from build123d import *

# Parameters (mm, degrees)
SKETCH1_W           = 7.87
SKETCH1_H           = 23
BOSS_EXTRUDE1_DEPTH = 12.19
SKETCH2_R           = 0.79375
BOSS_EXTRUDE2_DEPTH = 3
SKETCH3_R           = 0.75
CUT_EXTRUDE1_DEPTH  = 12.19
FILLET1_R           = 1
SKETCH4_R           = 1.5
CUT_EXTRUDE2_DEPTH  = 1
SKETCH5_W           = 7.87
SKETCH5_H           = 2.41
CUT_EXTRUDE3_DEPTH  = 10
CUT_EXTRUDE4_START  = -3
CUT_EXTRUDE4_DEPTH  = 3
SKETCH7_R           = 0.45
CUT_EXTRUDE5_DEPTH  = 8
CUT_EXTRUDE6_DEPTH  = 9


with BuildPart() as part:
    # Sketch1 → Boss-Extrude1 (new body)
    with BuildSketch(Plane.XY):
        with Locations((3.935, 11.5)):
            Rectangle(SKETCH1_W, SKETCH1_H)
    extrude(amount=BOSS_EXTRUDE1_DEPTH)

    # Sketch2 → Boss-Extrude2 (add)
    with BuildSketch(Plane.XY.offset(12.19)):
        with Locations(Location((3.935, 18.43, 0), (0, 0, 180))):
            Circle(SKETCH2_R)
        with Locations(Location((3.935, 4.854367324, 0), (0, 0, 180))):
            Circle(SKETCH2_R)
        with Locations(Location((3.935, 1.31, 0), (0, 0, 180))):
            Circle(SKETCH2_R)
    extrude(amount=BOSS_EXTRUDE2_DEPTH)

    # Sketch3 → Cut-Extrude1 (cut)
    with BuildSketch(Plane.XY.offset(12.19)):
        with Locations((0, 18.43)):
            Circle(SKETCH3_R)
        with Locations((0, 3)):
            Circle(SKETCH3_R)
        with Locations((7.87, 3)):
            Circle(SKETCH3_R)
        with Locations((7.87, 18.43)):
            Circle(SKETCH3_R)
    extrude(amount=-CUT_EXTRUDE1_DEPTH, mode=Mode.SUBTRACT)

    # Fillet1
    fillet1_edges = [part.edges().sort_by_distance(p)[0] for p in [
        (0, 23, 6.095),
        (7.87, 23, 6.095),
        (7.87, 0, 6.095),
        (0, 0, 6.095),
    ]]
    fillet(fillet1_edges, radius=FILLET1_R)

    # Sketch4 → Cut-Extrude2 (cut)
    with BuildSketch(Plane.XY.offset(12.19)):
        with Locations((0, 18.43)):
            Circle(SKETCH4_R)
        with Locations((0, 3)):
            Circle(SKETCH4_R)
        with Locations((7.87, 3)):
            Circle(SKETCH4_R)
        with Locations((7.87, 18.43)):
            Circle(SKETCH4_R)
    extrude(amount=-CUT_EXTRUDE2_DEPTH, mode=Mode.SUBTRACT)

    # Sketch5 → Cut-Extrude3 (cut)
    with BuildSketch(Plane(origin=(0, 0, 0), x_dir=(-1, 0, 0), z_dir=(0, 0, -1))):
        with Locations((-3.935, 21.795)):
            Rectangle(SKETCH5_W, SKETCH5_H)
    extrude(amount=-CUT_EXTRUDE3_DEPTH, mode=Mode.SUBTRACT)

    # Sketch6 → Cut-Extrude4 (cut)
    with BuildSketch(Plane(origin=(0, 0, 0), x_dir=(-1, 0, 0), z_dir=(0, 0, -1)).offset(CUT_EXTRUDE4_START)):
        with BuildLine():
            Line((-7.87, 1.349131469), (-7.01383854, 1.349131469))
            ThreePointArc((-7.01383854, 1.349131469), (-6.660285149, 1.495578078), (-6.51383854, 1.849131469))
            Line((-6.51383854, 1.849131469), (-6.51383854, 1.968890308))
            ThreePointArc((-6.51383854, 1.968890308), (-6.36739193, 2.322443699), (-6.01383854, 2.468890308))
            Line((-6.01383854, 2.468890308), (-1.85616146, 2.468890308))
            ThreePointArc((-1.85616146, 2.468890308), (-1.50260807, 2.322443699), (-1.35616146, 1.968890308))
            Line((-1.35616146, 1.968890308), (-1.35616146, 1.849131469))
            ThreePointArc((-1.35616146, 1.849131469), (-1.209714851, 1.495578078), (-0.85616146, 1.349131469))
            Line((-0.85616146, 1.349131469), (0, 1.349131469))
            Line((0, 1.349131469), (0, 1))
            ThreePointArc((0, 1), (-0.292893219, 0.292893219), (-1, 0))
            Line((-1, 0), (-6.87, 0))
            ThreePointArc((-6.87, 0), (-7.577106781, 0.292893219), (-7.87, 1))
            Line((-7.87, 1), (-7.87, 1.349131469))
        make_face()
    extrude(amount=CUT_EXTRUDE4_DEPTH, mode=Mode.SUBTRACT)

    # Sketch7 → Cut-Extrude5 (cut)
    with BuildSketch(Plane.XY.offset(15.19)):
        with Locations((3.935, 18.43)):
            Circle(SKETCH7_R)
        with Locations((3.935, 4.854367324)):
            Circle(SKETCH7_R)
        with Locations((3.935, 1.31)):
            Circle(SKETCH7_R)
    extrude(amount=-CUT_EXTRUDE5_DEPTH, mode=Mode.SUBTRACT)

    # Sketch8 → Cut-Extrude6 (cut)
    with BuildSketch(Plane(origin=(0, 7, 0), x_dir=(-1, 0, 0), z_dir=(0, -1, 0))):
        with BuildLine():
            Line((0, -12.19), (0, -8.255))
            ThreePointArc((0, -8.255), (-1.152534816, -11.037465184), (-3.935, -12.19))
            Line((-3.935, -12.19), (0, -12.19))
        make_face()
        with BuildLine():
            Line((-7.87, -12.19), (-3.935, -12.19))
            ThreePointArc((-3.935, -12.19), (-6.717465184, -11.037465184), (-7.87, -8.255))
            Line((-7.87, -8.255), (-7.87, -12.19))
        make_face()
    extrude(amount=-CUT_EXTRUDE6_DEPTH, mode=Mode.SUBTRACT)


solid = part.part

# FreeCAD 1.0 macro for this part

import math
import FreeCAD as App
import Part
import Sketcher

V = App.Vector
Q = App.Units.Quantity


def edges_at(feature, points):
    """Names of the edges that pass closest to the given points."""
    edges = feature.Shape.Edges
    near = lambda p: min(range(len(edges)), key=lambda i: edges[i].distToShape(Part.Vertex(*p))[0])
    return sorted({f"Edge{near(p) + 1}" for p in points})

doc = App.newDocument("Part")
params = doc.addObject("Spreadsheet::Sheet", "Params")
for row, (alias, value) in enumerate([
    ("sketch1_height", "23 mm"),
    ("sketch1_width", "7.87 mm"),
    ("pad1_length", "12.19 mm"),
    ("pad2_length", "3 mm"),
    ("sketch3_diameter", "1.5 mm"),
    ("pocket1_length", "12.19 mm"),
    ("fillet_radius", "1 mm"),
    ("sketch4_diameter", "3 mm"),
    ("pocket2_length", "1 mm"),
    ("sketch5_width", "7.87 mm"),
    ("sketch5_height", "2.41 mm"),
    ("pocket3_length", "10 mm"),
    ("sketch6_radius", "1 mm"),
    ("sketch6_radius2", "0.5 mm"),
    ("sketch6_width", "5.87 mm"),
    ("pocket4_length", "3 mm"),
    ("sketch7_diameter", "0.9 mm"),
    ("pocket5_length", "8 mm"),
    ("pocket6_length", "9 mm"),
], start=1):
    params.set(f"A{row}", alias)
    params.set(f"B{row}", "=" + value)
    params.setAlias(f"B{row}", alias)

body = doc.addObject("PartDesign::Body", "Body")

# Sketch on XY plane
sketch1 = body.newObject("Sketcher::SketchObject", "Sketch")
sketch1.AttachmentSupport = (doc.getObject("XY_Plane"), [""])
sketch1.MapMode = "FlatFace"
sketch1.addGeometry(Part.LineSegment(V(0, 23, 0), V(0, 0, 0)), False)
sketch1.addGeometry(Part.LineSegment(V(0, 0, 0), V(7.87, 0, 0)), False)
sketch1.addGeometry(Part.LineSegment(V(7.87, 0, 0), V(7.87, 23, 0)), False)
sketch1.addGeometry(Part.LineSegment(V(7.87, 23, 0), V(0, 23, 0)), False)
sketch1.addConstraint(Sketcher.Constraint("Coincident", 0, 2, 1, 1))
sketch1.addConstraint(Sketcher.Constraint("Coincident", 1, 2, 2, 1))
sketch1.addConstraint(Sketcher.Constraint("Coincident", 2, 2, 3, 1))
sketch1.addConstraint(Sketcher.Constraint("Coincident", 3, 2, 0, 1))
sketch1.addConstraint(Sketcher.Constraint("Vertical", 0))
sketch1.addConstraint(Sketcher.Constraint("Horizontal", 1))
sketch1.addConstraint(Sketcher.Constraint("Vertical", 2))
sketch1.addConstraint(Sketcher.Constraint("Horizontal", 3))
sketch1.addConstraint(Sketcher.Constraint("Coincident", 0, 2, -1, 1))
sketch1.addConstraint(Sketcher.Constraint("DistanceY", 0, 2, 0, 1, Q("23 mm")))
sketch1.addConstraint(Sketcher.Constraint("DistanceX", 1, 1, 1, 2, Q("7.87 mm")))
sketch1.setExpression("Constraints[9]", "Params.sketch1_height")
sketch1.setExpression("Constraints[10]", "Params.sketch1_width")
pad1 = body.newObject("PartDesign::Pad", "Pad")
pad1.Profile = sketch1
pad1.setExpression("Length", "Params.pad1_length")

# Sketch on XY plane
sketch2 = body.newObject("Sketcher::SketchObject", "Sketch001")
sketch2.AttachmentSupport = (doc.getObject("XY_Plane"), [""])
sketch2.MapMode = "FlatFace"
sketch2.AttachmentOffset = App.Placement(V(0, 0, 12.19), App.Rotation())
sketch2.addGeometry(Part.Circle(V(3.935, 18.43, 0), V(0, 0, 1), 0.79375), False)
sketch2.addGeometry(Part.Circle(V(3.935, 4.854367, 0), V(0, 0, 1), 0.79375), False)
sketch2.addGeometry(Part.Circle(V(3.935, 1.31, 0), V(0, 0, 1), 0.79375), False)
sketch2.addConstraint(Sketcher.Constraint("Equal", 0, 1))
sketch2.addConstraint(Sketcher.Constraint("Equal", 1, 2))
sketch2.addConstraint(Sketcher.Constraint("Vertical", 0, 3, 1, 3))
sketch2.addConstraint(Sketcher.Constraint("Vertical", 1, 3, 2, 3))
sketch2.addConstraint(Sketcher.Constraint("Diameter", 0, Q("1.5875 mm")))
sketch2.addConstraint(Sketcher.Constraint("DistanceY", -1, 1, 0, 3, Q("18.43 mm")))
sketch2.addConstraint(Sketcher.Constraint("DistanceY", -1, 1, 2, 3, Q("1.31 mm")))
sketch2.addConstraint(Sketcher.Constraint("DistanceX", -1, 1, 0, 3, Q("3.935 mm")))
sketch2.addConstraint(Sketcher.Constraint("DistanceY", -1, 1, 1, 3, Q("4.854367 mm")))
pad2 = body.newObject("PartDesign::Pad", "Pad001")
pad2.Profile = sketch2
pad2.setExpression("Length", "Params.pad2_length")

# Sketch on XY plane
sketch3 = body.newObject("Sketcher::SketchObject", "Sketch002")
sketch3.AttachmentSupport = (doc.getObject("XY_Plane"), [""])
sketch3.MapMode = "FlatFace"
sketch3.AttachmentOffset = App.Placement(V(0, 0, 12.19), App.Rotation())
sketch3.addGeometry(Part.Circle(V(0, 18.43, 0), V(0, 0, 1), 0.75), False)
sketch3.addGeometry(Part.Circle(V(0, 3, 0), V(0, 0, 1), 0.75), False)
sketch3.addGeometry(Part.Circle(V(7.87, 3, 0), V(0, 0, 1), 0.75), False)
sketch3.addGeometry(Part.Circle(V(7.87, 18.43, 0), V(0, 0, 1), 0.75), False)
sketch3.addConstraint(Sketcher.Constraint("Equal", 0, 1))
sketch3.addConstraint(Sketcher.Constraint("Equal", 1, 2))
sketch3.addConstraint(Sketcher.Constraint("Equal", 2, 3))
sketch3.addConstraint(Sketcher.Constraint("PointOnObject", 0, 3, -2))
sketch3.addConstraint(Sketcher.Constraint("PointOnObject", 1, 3, -2))
sketch3.addConstraint(Sketcher.Constraint("Horizontal", 1, 3, 2, 3))
sketch3.addConstraint(Sketcher.Constraint("Horizontal", 0, 3, 3, 3))
sketch3.addConstraint(Sketcher.Constraint("Vertical", 2, 3, 3, 3))
sketch3.addConstraint(Sketcher.Constraint("Diameter", 0, Q("1.5 mm")))
sketch3.addConstraint(Sketcher.Constraint("DistanceY", -1, 1, 1, 3, Q("3 mm")))
sketch3.addConstraint(Sketcher.Constraint("DistanceY", -1, 1, 0, 3, Q("18.43 mm")))
sketch3.addConstraint(Sketcher.Constraint("DistanceX", -1, 1, 2, 3, Q("7.87 mm")))
sketch3.setExpression("Constraints[8]", "Params.sketch3_diameter")
pocket1 = body.newObject("PartDesign::Pocket", "Pocket")
pocket1.Profile = sketch3
pocket1.setExpression("Length", "Params.pocket1_length")
doc.recompute()

fillet = body.newObject("PartDesign::Fillet", "Fillet")
fillet.Base = (pocket1, edges_at(pocket1, [
    (0, 23, 6.095),
    (7.87, 23, 6.095),
    (7.87, 0, 6.095),
    (0, 0, 6.095),
]))
fillet.setExpression("Radius", "Params.fillet_radius")

# Sketch on XY plane
sketch4 = body.newObject("Sketcher::SketchObject", "Sketch003")
sketch4.AttachmentSupport = (doc.getObject("XY_Plane"), [""])
sketch4.MapMode = "FlatFace"
sketch4.AttachmentOffset = App.Placement(V(0, 0, 12.19), App.Rotation())
sketch4.addGeometry(Part.Circle(V(0, 18.43, 0), V(0, 0, 1), 1.5), False)
sketch4.addGeometry(Part.Circle(V(0, 3, 0), V(0, 0, 1), 1.5), False)
sketch4.addGeometry(Part.Circle(V(7.87, 3, 0), V(0, 0, 1), 1.5), False)
sketch4.addGeometry(Part.Circle(V(7.87, 18.43, 0), V(0, 0, 1), 1.5), False)
sketch4.addConstraint(Sketcher.Constraint("Equal", 0, 1))
sketch4.addConstraint(Sketcher.Constraint("Equal", 1, 2))
sketch4.addConstraint(Sketcher.Constraint("Equal", 2, 3))
sketch4.addConstraint(Sketcher.Constraint("PointOnObject", 0, 3, -2))
sketch4.addConstraint(Sketcher.Constraint("PointOnObject", 1, 3, -2))
sketch4.addConstraint(Sketcher.Constraint("Horizontal", 1, 3, 2, 3))
sketch4.addConstraint(Sketcher.Constraint("Horizontal", 0, 3, 3, 3))
sketch4.addConstraint(Sketcher.Constraint("Vertical", 2, 3, 3, 3))
sketch4.addConstraint(Sketcher.Constraint("Diameter", 0, Q("3 mm")))
sketch4.addConstraint(Sketcher.Constraint("DistanceY", -1, 1, 1, 3, Q("3 mm")))
sketch4.addConstraint(Sketcher.Constraint("DistanceY", -1, 1, 0, 3, Q("18.43 mm")))
sketch4.addConstraint(Sketcher.Constraint("DistanceX", -1, 1, 2, 3, Q("7.87 mm")))
sketch4.setExpression("Constraints[8]", "Params.sketch4_diameter")
pocket2 = body.newObject("PartDesign::Pocket", "Pocket001")
pocket2.Profile = sketch4
pocket2.setExpression("Length", "Params.pocket2_length")

# Sketch on XY plane
sketch5 = body.newObject("Sketcher::SketchObject", "Sketch004")
sketch5.AttachmentSupport = (doc.getObject("XY_Plane"), [""])
sketch5.MapMode = "FlatFace"
sketch5.addGeometry(Part.LineSegment(V(7.87, 23, 0), V(7.87, 20.59, 0)), False)
sketch5.addGeometry(Part.LineSegment(V(7.87, 20.59, 0), V(0, 20.59, 0)), False)
sketch5.addGeometry(Part.LineSegment(V(0, 20.59, 0), V(0, 23, 0)), False)
sketch5.addGeometry(Part.LineSegment(V(0, 23, 0), V(7.87, 23, 0)), False)
sketch5.addConstraint(Sketcher.Constraint("Coincident", 0, 2, 1, 1))
sketch5.addConstraint(Sketcher.Constraint("Coincident", 1, 2, 2, 1))
sketch5.addConstraint(Sketcher.Constraint("Coincident", 2, 2, 3, 1))
sketch5.addConstraint(Sketcher.Constraint("Coincident", 3, 2, 0, 1))
sketch5.addConstraint(Sketcher.Constraint("Vertical", 0))
sketch5.addConstraint(Sketcher.Constraint("Horizontal", 1))
sketch5.addConstraint(Sketcher.Constraint("Vertical", 2))
sketch5.addConstraint(Sketcher.Constraint("Horizontal", 3))
sketch5.addConstraint(Sketcher.Constraint("PointOnObject", 1, 2, -2))
sketch5.addConstraint(Sketcher.Constraint("DistanceY", -1, 1, 2, 2, Q("23 mm")))
sketch5.addConstraint(Sketcher.Constraint("DistanceX", 1, 2, 1, 1, Q("7.87 mm")))
sketch5.addConstraint(Sketcher.Constraint("DistanceY", 0, 2, 0, 1, Q("2.41 mm")))
sketch5.setExpression("Constraints[10]", "Params.sketch5_width")
sketch5.setExpression("Constraints[11]", "Params.sketch5_height")
pocket3 = body.newObject("PartDesign::Pocket", "Pocket002")
pocket3.Profile = sketch5
pocket3.setExpression("Length", "Params.pocket3_length")
pocket3.Reversed = True

# Sketch on XY plane
sketch6 = body.newObject("Sketcher::SketchObject", "Sketch005")
sketch6.AttachmentSupport = (doc.getObject("XY_Plane"), [""])
sketch6.MapMode = "FlatFace"
sketch6.AttachmentOffset = App.Placement(V(0, 0, 3), App.Rotation())
sketch6.addGeometry(Part.LineSegment(V(7.013839, 1.349131, 0), V(7.87, 1.349131, 0)), False)
sketch6.addGeometry(Part.LineSegment(V(7.87, 1.349131, 0), V(7.87, 1, 0)), False)
sketch6.addGeometry(Part.ArcOfCircle(Part.Circle(V(6.87, 1, 0), V(0, 0, 1), 1), math.radians(-90), math.radians(0)), False)
sketch6.addGeometry(Part.LineSegment(V(6.87, 0, 0), V(1, 0, 0)), False)
sketch6.addGeometry(Part.ArcOfCircle(Part.Circle(V(1, 1, 0), V(0, 0, 1), 1), math.radians(-180), math.radians(-90)), False)
sketch6.addGeometry(Part.LineSegment(V(0, 1, 0), V(0, 1.349131, 0)), False)
sketch6.addGeometry(Part.LineSegment(V(0, 1.349131, 0), V(0.856161, 1.349131, 0)), False)
sketch6.addGeometry(Part.ArcOfCircle(Part.Circle(V(0.856161, 1.849131, 0), V(0, 0, 1), 0.5), math.radians(-90), math.radians(0)), False)
sketch6.addGeometry(Part.LineSegment(V(1.356161, 1.849131, 0), V(1.356161, 1.96889, 0)), False)
sketch6.addGeometry(Part.ArcOfCircle(Part.Circle(V(1.856161, 1.96889, 0), V(0, 0, 1), 0.5), math.radians(90), math.radians(180)), False)
sketch6.addGeometry(Part.LineSegment(V(1.856161, 2.46889, 0), V(6.013839, 2.46889, 0)), False)
sketch6.addGeometry(Part.ArcOfCircle(Part.Circle(V(6.013839, 1.96889, 0), V(0, 0, 1), 0.5), math.radians(0), math.radians(90)), False)
sketch6.addGeometry(Part.LineSegment(V(6.513839, 1.96889, 0), V(6.513839, 1.849131, 0)), False)
sketch6.addGeometry(Part.ArcOfCircle(Part.Circle(V(7.013839, 1.849131, 0), V(0, 0, 1), 0.5), math.radians(180), math.radians(270)), False)
sketch6.addConstraint(Sketcher.Constraint("Coincident", 0, 2, 1, 1))
sketch6.addConstraint(Sketcher.Constraint("Tangent", 1, 2, 2, 2))
sketch6.addConstraint(Sketcher.Constraint("Tangent", 2, 1, 3, 1))
sketch6.addConstraint(Sketcher.Constraint("Tangent", 3, 2, 4, 2))
sketch6.addConstraint(Sketcher.Constraint("Tangent", 4, 1, 5, 1))
sketch6.addConstraint(Sketcher.Constraint("Coincident", 5, 2, 6, 1))
sketch6.addConstraint(Sketcher.Constraint("Tangent", 6, 2, 7, 1))
sketch6.addConstraint(Sketcher.Constraint("Tangent", 7, 2, 8, 1))
sketch6.addConstraint(Sketcher.Constraint("Tangent", 8, 2, 9, 2))
sketch6.addConstraint(Sketcher.Constraint("Tangent", 9, 1, 10, 1))
sketch6.addConstraint(Sketcher.Constraint("Tangent", 10, 2, 11, 2))
sketch6.addConstraint(Sketcher.Constraint("Tangent", 11, 1, 12, 1))
sketch6.addConstraint(Sketcher.Constraint("Tangent", 12, 2, 13, 1))
sketch6.addConstraint(Sketcher.Constraint("Tangent", 13, 2, 0, 1))
sketch6.addConstraint(Sketcher.Constraint("Horizontal", 0))
sketch6.addConstraint(Sketcher.Constraint("Vertical", 1))
sketch6.addConstraint(Sketcher.Constraint("Horizontal", 3))
sketch6.addConstraint(Sketcher.Constraint("Vertical", 5))
sketch6.addConstraint(Sketcher.Constraint("Horizontal", 6))
sketch6.addConstraint(Sketcher.Constraint("Vertical", 8))
sketch6.addConstraint(Sketcher.Constraint("Horizontal", 10))
sketch6.addConstraint(Sketcher.Constraint("Vertical", 12))
sketch6.addConstraint(Sketcher.Constraint("Equal", 2, 4))
sketch6.addConstraint(Sketcher.Constraint("Equal", 7, 9))
sketch6.addConstraint(Sketcher.Constraint("Equal", 9, 11))
sketch6.addConstraint(Sketcher.Constraint("Equal", 11, 13))
sketch6.addConstraint(Sketcher.Constraint("PointOnObject", 2, 1, -1))
sketch6.addConstraint(Sketcher.Constraint("PointOnObject", 4, 1, -2))
sketch6.addConstraint(Sketcher.Constraint("Horizontal", 7, 3, 13, 3))
sketch6.addConstraint(Sketcher.Constraint("Equal", 0, 6))
sketch6.addConstraint(Sketcher.Constraint("Radius", 2, Q("1 mm")))
sketch6.addConstraint(Sketcher.Constraint("Radius", 7, Q("0.5 mm")))
sketch6.addConstraint(Sketcher.Constraint("DistanceX", 3, 2, 3, 1, Q("5.87 mm")))
sketch6.addConstraint(Sketcher.Constraint("DistanceX", 0, 1, 0, 2, Q("0.856161 mm")))
sketch6.addConstraint(Sketcher.Constraint("DistanceY", 1, 2, 1, 1, Q("0.349131 mm")))
sketch6.addConstraint(Sketcher.Constraint("DistanceY", 8, 1, 8, 2, Q("0.119759 mm")))
sketch6.setExpression("Constraints[30]", "Params.sketch6_radius")
sketch6.setExpression("Constraints[31]", "Params.sketch6_radius2")
sketch6.setExpression("Constraints[32]", "Params.sketch6_width")
pocket4 = body.newObject("PartDesign::Pocket", "Pocket003")
pocket4.Profile = sketch6
pocket4.setExpression("Length", "Params.pocket4_length")

# Sketch on XY plane
sketch7 = body.newObject("Sketcher::SketchObject", "Sketch006")
sketch7.AttachmentSupport = (doc.getObject("XY_Plane"), [""])
sketch7.MapMode = "FlatFace"
sketch7.AttachmentOffset = App.Placement(V(0, 0, 15.19), App.Rotation())
sketch7.addGeometry(Part.Circle(V(3.935, 18.43, 0), V(0, 0, 1), 0.45), False)
sketch7.addGeometry(Part.Circle(V(3.935, 4.854367, 0), V(0, 0, 1), 0.45), False)
sketch7.addGeometry(Part.Circle(V(3.935, 1.31, 0), V(0, 0, 1), 0.45), False)
sketch7.addConstraint(Sketcher.Constraint("Equal", 0, 1))
sketch7.addConstraint(Sketcher.Constraint("Equal", 1, 2))
sketch7.addConstraint(Sketcher.Constraint("Vertical", 0, 3, 1, 3))
sketch7.addConstraint(Sketcher.Constraint("Vertical", 1, 3, 2, 3))
sketch7.addConstraint(Sketcher.Constraint("Diameter", 0, Q("0.9 mm")))
sketch7.addConstraint(Sketcher.Constraint("DistanceY", -1, 1, 0, 3, Q("18.43 mm")))
sketch7.addConstraint(Sketcher.Constraint("DistanceY", -1, 1, 2, 3, Q("1.31 mm")))
sketch7.addConstraint(Sketcher.Constraint("DistanceX", -1, 1, 0, 3, Q("3.935 mm")))
sketch7.addConstraint(Sketcher.Constraint("DistanceY", -1, 1, 1, 3, Q("4.854367 mm")))
sketch7.setExpression("Constraints[4]", "Params.sketch7_diameter")
pocket5 = body.newObject("PartDesign::Pocket", "Pocket004")
pocket5.Profile = sketch7
pocket5.setExpression("Length", "Params.pocket5_length")

# Sketch on XZ plane
sketch8 = body.newObject("Sketcher::SketchObject", "Sketch007")
sketch8.AttachmentSupport = (doc.getObject("XZ_Plane"), [""])
sketch8.MapMode = "FlatFace"
sketch8.AttachmentOffset = App.Placement(V(0, 0, -7), App.Rotation())
sketch8.addGeometry(Part.LineSegment(V(0, 12.19, 0), V(0, 8.255, 0)), False)
sketch8.addGeometry(Part.ArcOfCircle(Part.Circle(V(3.935, 8.255, 0), V(0, 0, 1), 3.935), math.radians(90), math.radians(180)), False)
sketch8.addGeometry(Part.LineSegment(V(3.935, 12.19, 0), V(0, 12.19, 0)), False)
sketch8.addGeometry(Part.LineSegment(V(7.87, 12.19, 0), V(3.935, 12.19, 0)), False)
sketch8.addGeometry(Part.ArcOfCircle(Part.Circle(V(3.935, 8.255, 0), V(0, 0, 1), 3.935), math.radians(0), math.radians(90)), False)
sketch8.addGeometry(Part.LineSegment(V(7.87, 8.255, 0), V(7.87, 12.19, 0)), False)
sketch8.addConstraint(Sketcher.Constraint("Tangent", 0, 2, 1, 2))
sketch8.addConstraint(Sketcher.Constraint("Tangent", 1, 1, 2, 1))
sketch8.addConstraint(Sketcher.Constraint("Coincident", 2, 2, 0, 1))
sketch8.addConstraint(Sketcher.Constraint("Tangent", 3, 2, 4, 2))
sketch8.addConstraint(Sketcher.Constraint("Tangent", 4, 1, 5, 1))
sketch8.addConstraint(Sketcher.Constraint("Coincident", 5, 2, 3, 1))
sketch8.addConstraint(Sketcher.Constraint("Vertical", 0))
sketch8.addConstraint(Sketcher.Constraint("Horizontal", 2))
sketch8.addConstraint(Sketcher.Constraint("Horizontal", 3))
sketch8.addConstraint(Sketcher.Constraint("Vertical", 5))
sketch8.addConstraint(Sketcher.Constraint("Coincident", 4, 3, 1, 3))
sketch8.addConstraint(Sketcher.Constraint("Equal", 1, 4))
sketch8.addConstraint(Sketcher.Constraint("PointOnObject", 0, 2, -2))
sketch8.addConstraint(Sketcher.Constraint("Radius", 1, Q("3.935 mm")))
sketch8.addConstraint(Sketcher.Constraint("DistanceY", -1, 1, 1, 1, Q("12.19 mm")))
pocket6 = body.newObject("PartDesign::Pocket", "Pocket005")
pocket6.Profile = sketch8
pocket6.setExpression("Length", "Params.pocket6_length")

doc.recompute()
